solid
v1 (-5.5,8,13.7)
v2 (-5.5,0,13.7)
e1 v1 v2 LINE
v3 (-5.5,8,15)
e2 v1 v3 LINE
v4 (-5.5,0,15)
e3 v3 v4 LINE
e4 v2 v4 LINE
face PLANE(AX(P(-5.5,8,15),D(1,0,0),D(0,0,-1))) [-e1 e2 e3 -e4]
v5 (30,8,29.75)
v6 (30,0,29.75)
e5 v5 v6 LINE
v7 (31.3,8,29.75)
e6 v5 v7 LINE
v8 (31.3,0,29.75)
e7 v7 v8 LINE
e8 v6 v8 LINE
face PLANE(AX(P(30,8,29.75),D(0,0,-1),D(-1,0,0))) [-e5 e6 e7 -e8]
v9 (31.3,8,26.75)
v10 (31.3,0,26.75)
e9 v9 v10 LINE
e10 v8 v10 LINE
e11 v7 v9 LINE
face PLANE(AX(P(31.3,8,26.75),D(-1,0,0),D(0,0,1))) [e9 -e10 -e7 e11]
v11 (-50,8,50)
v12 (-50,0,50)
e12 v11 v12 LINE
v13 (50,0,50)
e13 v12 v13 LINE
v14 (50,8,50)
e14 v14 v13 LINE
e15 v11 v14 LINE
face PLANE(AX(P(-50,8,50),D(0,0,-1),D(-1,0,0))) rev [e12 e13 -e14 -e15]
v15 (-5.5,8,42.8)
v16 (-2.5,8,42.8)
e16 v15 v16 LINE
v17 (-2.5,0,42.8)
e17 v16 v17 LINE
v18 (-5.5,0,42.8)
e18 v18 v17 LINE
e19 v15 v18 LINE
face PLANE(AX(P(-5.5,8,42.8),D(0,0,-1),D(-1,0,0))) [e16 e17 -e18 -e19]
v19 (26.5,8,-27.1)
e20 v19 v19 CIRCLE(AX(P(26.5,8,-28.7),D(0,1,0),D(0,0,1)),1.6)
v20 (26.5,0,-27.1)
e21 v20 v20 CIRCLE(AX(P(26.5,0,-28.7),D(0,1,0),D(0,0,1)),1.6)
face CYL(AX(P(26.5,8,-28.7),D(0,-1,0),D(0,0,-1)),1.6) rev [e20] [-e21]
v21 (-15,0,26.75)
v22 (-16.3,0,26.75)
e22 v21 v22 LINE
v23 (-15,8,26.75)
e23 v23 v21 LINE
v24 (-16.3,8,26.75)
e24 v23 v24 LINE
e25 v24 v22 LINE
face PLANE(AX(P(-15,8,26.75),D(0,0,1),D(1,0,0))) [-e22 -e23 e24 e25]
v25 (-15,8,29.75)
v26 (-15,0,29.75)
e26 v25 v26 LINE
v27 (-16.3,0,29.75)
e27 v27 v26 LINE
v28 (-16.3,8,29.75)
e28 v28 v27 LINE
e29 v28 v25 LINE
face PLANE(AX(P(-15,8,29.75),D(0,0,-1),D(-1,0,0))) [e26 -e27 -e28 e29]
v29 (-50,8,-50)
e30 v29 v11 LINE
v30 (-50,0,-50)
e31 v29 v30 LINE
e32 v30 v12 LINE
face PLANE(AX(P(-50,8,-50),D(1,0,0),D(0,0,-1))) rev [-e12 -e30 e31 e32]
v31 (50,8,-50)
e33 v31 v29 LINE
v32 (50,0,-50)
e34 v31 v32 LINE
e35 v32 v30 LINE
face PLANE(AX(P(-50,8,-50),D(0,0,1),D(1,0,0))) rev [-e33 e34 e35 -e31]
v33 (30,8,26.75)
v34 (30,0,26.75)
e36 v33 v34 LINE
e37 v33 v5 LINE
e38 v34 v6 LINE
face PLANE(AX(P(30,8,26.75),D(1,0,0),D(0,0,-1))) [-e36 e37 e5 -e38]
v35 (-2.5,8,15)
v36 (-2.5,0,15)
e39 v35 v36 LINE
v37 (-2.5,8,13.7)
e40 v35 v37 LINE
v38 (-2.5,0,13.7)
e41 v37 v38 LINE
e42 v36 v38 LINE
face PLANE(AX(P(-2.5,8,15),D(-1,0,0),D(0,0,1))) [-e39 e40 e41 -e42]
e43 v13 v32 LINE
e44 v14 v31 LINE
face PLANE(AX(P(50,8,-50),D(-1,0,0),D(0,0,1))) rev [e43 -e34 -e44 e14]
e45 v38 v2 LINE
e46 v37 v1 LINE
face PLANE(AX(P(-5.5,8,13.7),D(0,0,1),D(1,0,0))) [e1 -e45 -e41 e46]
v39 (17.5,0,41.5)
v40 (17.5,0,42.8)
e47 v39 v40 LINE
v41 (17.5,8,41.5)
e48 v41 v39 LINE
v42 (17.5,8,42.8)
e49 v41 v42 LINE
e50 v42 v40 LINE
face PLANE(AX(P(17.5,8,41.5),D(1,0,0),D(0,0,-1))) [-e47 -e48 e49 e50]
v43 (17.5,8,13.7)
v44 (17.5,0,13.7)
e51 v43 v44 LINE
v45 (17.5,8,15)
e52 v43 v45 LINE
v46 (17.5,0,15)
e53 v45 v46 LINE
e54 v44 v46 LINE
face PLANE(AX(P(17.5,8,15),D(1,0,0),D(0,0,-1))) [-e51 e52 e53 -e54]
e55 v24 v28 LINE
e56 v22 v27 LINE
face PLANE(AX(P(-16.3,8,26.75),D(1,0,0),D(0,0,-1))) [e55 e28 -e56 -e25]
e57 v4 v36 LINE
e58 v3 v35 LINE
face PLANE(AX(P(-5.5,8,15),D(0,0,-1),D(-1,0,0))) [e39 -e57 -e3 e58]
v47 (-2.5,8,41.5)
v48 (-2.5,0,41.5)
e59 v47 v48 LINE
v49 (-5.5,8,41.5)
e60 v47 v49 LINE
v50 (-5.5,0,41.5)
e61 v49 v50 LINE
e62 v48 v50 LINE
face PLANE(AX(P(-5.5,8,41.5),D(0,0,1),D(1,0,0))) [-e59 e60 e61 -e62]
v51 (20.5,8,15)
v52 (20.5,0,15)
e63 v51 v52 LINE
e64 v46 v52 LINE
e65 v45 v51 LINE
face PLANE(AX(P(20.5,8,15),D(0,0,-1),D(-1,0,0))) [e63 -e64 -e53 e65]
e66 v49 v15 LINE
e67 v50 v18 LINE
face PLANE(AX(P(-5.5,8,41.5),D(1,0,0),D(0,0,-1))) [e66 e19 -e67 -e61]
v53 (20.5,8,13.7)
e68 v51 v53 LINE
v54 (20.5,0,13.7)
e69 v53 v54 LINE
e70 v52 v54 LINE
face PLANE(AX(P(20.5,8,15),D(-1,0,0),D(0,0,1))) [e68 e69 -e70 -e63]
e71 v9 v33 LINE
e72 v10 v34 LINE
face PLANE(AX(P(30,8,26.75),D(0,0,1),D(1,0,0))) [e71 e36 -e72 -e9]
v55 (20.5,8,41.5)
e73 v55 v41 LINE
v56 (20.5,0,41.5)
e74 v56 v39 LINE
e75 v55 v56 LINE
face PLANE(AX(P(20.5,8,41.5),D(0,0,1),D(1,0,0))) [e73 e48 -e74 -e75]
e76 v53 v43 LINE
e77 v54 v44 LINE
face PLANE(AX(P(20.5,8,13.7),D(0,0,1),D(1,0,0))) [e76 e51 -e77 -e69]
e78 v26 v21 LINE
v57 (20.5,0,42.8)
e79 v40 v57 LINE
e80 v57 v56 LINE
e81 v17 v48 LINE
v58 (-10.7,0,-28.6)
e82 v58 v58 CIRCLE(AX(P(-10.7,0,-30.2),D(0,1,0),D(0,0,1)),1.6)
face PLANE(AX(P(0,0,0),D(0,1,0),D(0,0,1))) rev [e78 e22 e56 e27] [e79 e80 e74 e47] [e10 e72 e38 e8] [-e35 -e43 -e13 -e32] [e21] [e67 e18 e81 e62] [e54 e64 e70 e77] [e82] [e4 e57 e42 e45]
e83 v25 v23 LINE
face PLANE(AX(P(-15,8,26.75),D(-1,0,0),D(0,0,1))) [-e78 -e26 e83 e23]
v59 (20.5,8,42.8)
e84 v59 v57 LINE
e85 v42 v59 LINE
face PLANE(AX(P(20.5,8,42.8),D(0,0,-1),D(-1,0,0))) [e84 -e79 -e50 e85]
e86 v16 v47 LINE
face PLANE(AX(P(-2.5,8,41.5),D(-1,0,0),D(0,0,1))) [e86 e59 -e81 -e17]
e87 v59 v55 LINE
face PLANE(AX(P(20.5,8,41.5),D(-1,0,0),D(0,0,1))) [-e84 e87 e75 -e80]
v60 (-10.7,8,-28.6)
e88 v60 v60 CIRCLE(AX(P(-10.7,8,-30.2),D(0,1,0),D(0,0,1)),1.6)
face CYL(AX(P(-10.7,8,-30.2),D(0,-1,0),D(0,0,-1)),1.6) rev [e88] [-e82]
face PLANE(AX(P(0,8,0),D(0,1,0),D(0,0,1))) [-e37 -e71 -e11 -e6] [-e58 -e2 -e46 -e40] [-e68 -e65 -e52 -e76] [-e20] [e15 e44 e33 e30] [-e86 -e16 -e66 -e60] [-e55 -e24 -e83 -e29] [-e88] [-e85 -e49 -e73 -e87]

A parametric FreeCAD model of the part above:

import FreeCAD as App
import Part
import Sketcher

doc = App.newDocument("Part")
body = doc.addObject("PartDesign::Body", "Body")

sketch1 = doc.addObject("Sketcher::SketchObject", "Sketch")
body.addObject(sketch1)
sketch1.AttachmentSupport = (doc.XZ_Plane, [""])
sketch1.MapMode = "FlatFace"
sketch1.addGeometry(Part.LineSegment(App.Vector(-50, -50, 0), App.Vector(-50, 50, 0)), False)
sketch1.addGeometry(Part.LineSegment(App.Vector(-50, 50, 0), App.Vector(50, 50, 0)), False)
sketch1.addGeometry(Part.LineSegment(App.Vector(50, 50, 0), App.Vector(50, -50, 0)), False)
sketch1.addGeometry(Part.LineSegment(App.Vector(50, -50, 0), App.Vector(-50, -50, 0)), False)
sketch1.addGeometry(Part.LineSegment(App.Vector(-15, 29.8, 0), App.Vector(-16.3, 29.8, 0)), False)
sketch1.addGeometry(Part.LineSegment(App.Vector(-16.3, 29.8, 0), App.Vector(-16.3, 26.8, 0)), False)
sketch1.addGeometry(Part.LineSegment(App.Vector(-16.3, 26.8, 0), App.Vector(-15, 26.8, 0)), False)
sketch1.addGeometry(Part.LineSegment(App.Vector(-15, 26.8, 0), App.Vector(-15, 29.8, 0)), False)
sketch1.addGeometry(Part.LineSegment(App.Vector(-2.5, 42.8, 0), App.Vector(-5.5, 42.8, 0)), False)
sketch1.addGeometry(Part.LineSegment(App.Vector(-5.5, 42.8, 0), App.Vector(-5.5, 41.5, 0)), False)
sketch1.addGeometry(Part.LineSegment(App.Vector(-5.5, 41.5, 0), App.Vector(-2.5, 41.5, 0)), False)
sketch1.addGeometry(Part.LineSegment(App.Vector(-2.5, 41.5, 0), App.Vector(-2.5, 42.8, 0)), False)
sketch1.addGeometry(Part.LineSegment(App.Vector(-2.5, 15, 0), App.Vector(-5.5, 15, 0)), False)
sketch1.addGeometry(Part.LineSegment(App.Vector(-5.5, 15, 0), App.Vector(-5.5, 13.7, 0)), False)
sketch1.addGeometry(Part.LineSegment(App.Vector(-5.5, 13.7, 0), App.Vector(-2.5, 13.7, 0)), False)
sketch1.addGeometry(Part.LineSegment(App.Vector(-2.5, 13.7, 0), App.Vector(-2.5, 15, 0)), False)
sketch1.addGeometry(Part.LineSegment(App.Vector(20.5, 42.8, 0), App.Vector(17.5, 42.8, 0)), False)
sketch1.addGeometry(Part.LineSegment(App.Vector(17.5, 42.8, 0), App.Vector(17.5, 41.5, 0)), False)
sketch1.addGeometry(Part.LineSegment(App.Vector(17.5, 41.5, 0), App.Vector(20.5, 41.5, 0)), False)
sketch1.addGeometry(Part.LineSegment(App.Vector(20.5, 41.5, 0), App.Vector(20.5, 42.8, 0)), False)
sketch1.addGeometry(Part.LineSegment(App.Vector(31.3, 29.8, 0), App.Vector(30, 29.8, 0)), False)
sketch1.addGeometry(Part.LineSegment(App.Vector(30, 29.8, 0), App.Vector(30, 26.8, 0)), False)
sketch1.addGeometry(Part.LineSegment(App.Vector(30, 26.8, 0), App.Vector(31.3, 26.8, 0)), False)
sketch1.addGeometry(Part.LineSegment(App.Vector(31.3, 26.8, 0), App.Vector(31.3, 29.8, 0)), False)
sketch1.addGeometry(Part.LineSegment(App.Vector(20.5, 15, 0), App.Vector(17.5, 15, 0)), False)
sketch1.addGeometry(Part.LineSegment(App.Vector(17.5, 15, 0), App.Vector(17.5, 13.7, 0)), False)
sketch1.addGeometry(Part.LineSegment(App.Vector(17.5, 13.7, 0), App.Vector(20.5, 13.7, 0)), False)
sketch1.addGeometry(Part.LineSegment(App.Vector(20.5, 13.7, 0), App.Vector(20.5, 15, 0)), False)
sketch1.addGeometry(Part.Circle(App.Vector(-10.7, -30.2, 0), App.Vector(0, 0, 1), 1.6), False)
sketch1.addGeometry(Part.Circle(App.Vector(26.5, -28.7, 0), App.Vector(0, 0, 1), 1.6), False)
sketch1.addConstraint(Sketcher.Constraint("Coincident", 0, 2, 1, 1))
sketch1.addConstraint(Sketcher.Constraint("Coincident", 1, 2, 2, 1))
sketch1.addConstraint(Sketcher.Constraint("Coincident", 2, 2, 3, 1))
sketch1.addConstraint(Sketcher.Constraint("Coincident", 3, 2, 0, 1))
sketch1.addConstraint(Sketcher.Constraint("Coincident", 4, 2, 5, 1))
sketch1.addConstraint(Sketcher.Constraint("Coincident", 5, 2, 6, 1))
sketch1.addConstraint(Sketcher.Constraint("Coincident", 6, 2, 7, 1))
sketch1.addConstraint(Sketcher.Constraint("Coincident", 7, 2, 4, 1))
sketch1.addConstraint(Sketcher.Constraint("Coincident", 8, 2, 9, 1))
sketch1.addConstraint(Sketcher.Constraint("Coincident", 9, 2, 10, 1))
sketch1.addConstraint(Sketcher.Constraint("Coincident", 10, 2, 11, 1))
sketch1.addConstraint(Sketcher.Constraint("Coincident", 11, 2, 8, 1))
sketch1.addConstraint(Sketcher.Constraint("Coincident", 12, 2, 13, 1))
sketch1.addConstraint(Sketcher.Constraint("Coincident", 13, 2, 14, 1))
sketch1.addConstraint(Sketcher.Constraint("Coincident", 14, 2, 15, 1))
sketch1.addConstraint(Sketcher.Constraint("Coincident", 15, 2, 12, 1))
sketch1.addConstraint(Sketcher.Constraint("Coincident", 16, 2, 17, 1))
sketch1.addConstraint(Sketcher.Constraint("Coincident", 17, 2, 18, 1))
sketch1.addConstraint(Sketcher.Constraint("Coincident", 18, 2, 19, 1))
sketch1.addConstraint(Sketcher.Constraint("Coincident", 19, 2, 16, 1))
sketch1.addConstraint(Sketcher.Constraint("Coincident", 20, 2, 21, 1))
sketch1.addConstraint(Sketcher.Constraint("Coincident", 21, 2, 22, 1))
sketch1.addConstraint(Sketcher.Constraint("Coincident", 22, 2, 23, 1))
sketch1.addConstraint(Sketcher.Constraint("Coincident", 23, 2, 20, 1))
sketch1.addConstraint(Sketcher.Constraint("Coincident", 24, 2, 25, 1))
sketch1.addConstraint(Sketcher.Constraint("Coincident", 25, 2, 26, 1))
sketch1.addConstraint(Sketcher.Constraint("Coincident", 26, 2, 27, 1))
sketch1.addConstraint(Sketcher.Constraint("Coincident", 27, 2, 24, 1))
sketch1.addConstraint(Sketcher.Constraint("Vertical", 0))
sketch1.addConstraint(Sketcher.Constraint("Horizontal", 1))
sketch1.addConstraint(Sketcher.Constraint("Vertical", 2))
sketch1.addConstraint(Sketcher.Constraint("Horizontal", 3))
sketch1.addConstraint(Sketcher.Constraint("Horizontal", 4))
sketch1.addConstraint(Sketcher.Constraint("Vertical", 5))
sketch1.addConstraint(Sketcher.Constraint("Horizontal", 6))
sketch1.addConstraint(Sketcher.Constraint("Vertical", 7))
sketch1.addConstraint(Sketcher.Constraint("Horizontal", 8))
sketch1.addConstraint(Sketcher.Constraint("Vertical", 9))
sketch1.addConstraint(Sketcher.Constraint("Horizontal", 10))
sketch1.addConstraint(Sketcher.Constraint("Vertical", 11))
sketch1.addConstraint(Sketcher.Constraint("Horizontal", 12))
sketch1.addConstraint(Sketcher.Constraint("Vertical", 13))
sketch1.addConstraint(Sketcher.Constraint("Horizontal", 14))
sketch1.addConstraint(Sketcher.Constraint("Vertical", 15))
sketch1.addConstraint(Sketcher.Constraint("Horizontal", 16))
sketch1.addConstraint(Sketcher.Constraint("Vertical", 17))
sketch1.addConstraint(Sketcher.Constraint("Horizontal", 18))
sketch1.addConstraint(Sketcher.Constraint("Vertical", 19))
sketch1.addConstraint(Sketcher.Constraint("Horizontal", 20))
sketch1.addConstraint(Sketcher.Constraint("Vertical", 21))
sketch1.addConstraint(Sketcher.Constraint("Horizontal", 22))
sketch1.addConstraint(Sketcher.Constraint("Vertical", 23))
sketch1.addConstraint(Sketcher.Constraint("Horizontal", 24))
sketch1.addConstraint(Sketcher.Constraint("Vertical", 25))
sketch1.addConstraint(Sketcher.Constraint("Horizontal", 26))
sketch1.addConstraint(Sketcher.Constraint("Vertical", 27))
sketch1.addConstraint(Sketcher.Constraint("Equal", 28, 29))
sketch1.addConstraint(Sketcher.Constraint("Symmetric", 0, 2, 2, 2, -1, 1))
sketch1.addConstraint(Sketcher.Constraint("Horizontal", 11, 2, 16, 2))
sketch1.addConstraint(Sketcher.Constraint("Horizontal", 10, 2, 17, 2))
sketch1.addConstraint(Sketcher.Constraint("Horizontal", 7, 2, 20, 2))
sketch1.addConstraint(Sketcher.Constraint("Horizontal", 6, 2, 21, 2))
sketch1.addConstraint(Sketcher.Constraint("Horizontal", 15, 2, 24, 2))
sketch1.addConstraint(Sketcher.Constraint("Horizontal", 14, 2, 25, 2))
sketch1.addConstraint(Sketcher.Constraint("Vertical", 9, 2, 12, 2))
sketch1.addConstraint(Sketcher.Constraint("Vertical", 11, 2, 14, 2))
sketch1.addConstraint(Sketcher.Constraint("Vertical", 17, 2, 24, 2))
sketch1.addConstraint(Sketcher.Constraint("Vertical", 19, 2, 26, 2))
sketch1.addConstraint(Sketcher.Constraint("Equal", 14, 16))
sketch1.addConstraint(Sketcher.Constraint("Equal", 6, 20))
sketch1.addConstraint(Sketcher.Constraint("Equal", 3, 0))
sketch1.addConstraint(Sketcher.Constraint("Equal", 26, 5))
sketch1.addConstraint(Sketcher.Constraint("Equal", 22, 9))
sketch1.addConstraint(Sketcher.Constraint("Equal", 11, 13))
sketch1.addConstraint(Sketcher.Constraint("Diameter", 28, 3.2))
sketch1.addConstraint(Sketcher.Constraint("DistanceX", 1, 1, 1, 2, 100.0))
sketch1.addConstraint(Sketcher.Constraint("DistanceX", 8, 2, 8, 1, 3.0))
sketch1.addConstraint(Sketcher.Constraint("DistanceX", 4, 2, 4, 1, 1.3))
sketch1.addConstraint(Sketcher.Constraint("DistanceX", 6, 2, -1, 1, 15.0))
sketch1.addConstraint(Sketcher.Constraint("DistanceY", -1, 1, 12, 2, 15.0))
sketch1.addConstraint(Sketcher.Constraint("DistanceX", -1, 1, 20, 2, 30.0))
sketch1.addConstraint(Sketcher.Constraint("DistanceX", 11, 2, 16, 2, 20.0))
sketch1.addConstraint(Sketcher.Constraint("DistanceX", 28, 3, -1, 1, 10.7))
sketch1.addConstraint(Sketcher.Constraint("DistanceY", 28, 3, -1, 1, 30.2))
sketch1.addConstraint(Sketcher.Constraint("DistanceX", -1, 1, 29, 3, 26.5))
sketch1.addConstraint(Sketcher.Constraint("DistanceY", 29, 3, -1, 1, 28.7))
sketch1.addConstraint(Sketcher.Constraint("DistanceX", 8, 2, -1, 1, 5.5))
sketch1.addConstraint(Sketcher.Constraint("DistanceY", -1, 1, 8, 2, 42.8))
sketch1.addConstraint(Sketcher.Constraint("DistanceY", -1, 1, 4, 2, 29.75))
pad1 = doc.addObject("PartDesign::Pad", "Pad")
body.addObject(pad1)
pad1.Profile = sketch1
pad1.Length = 8
pad1.Reversed = True

doc.recompute()
